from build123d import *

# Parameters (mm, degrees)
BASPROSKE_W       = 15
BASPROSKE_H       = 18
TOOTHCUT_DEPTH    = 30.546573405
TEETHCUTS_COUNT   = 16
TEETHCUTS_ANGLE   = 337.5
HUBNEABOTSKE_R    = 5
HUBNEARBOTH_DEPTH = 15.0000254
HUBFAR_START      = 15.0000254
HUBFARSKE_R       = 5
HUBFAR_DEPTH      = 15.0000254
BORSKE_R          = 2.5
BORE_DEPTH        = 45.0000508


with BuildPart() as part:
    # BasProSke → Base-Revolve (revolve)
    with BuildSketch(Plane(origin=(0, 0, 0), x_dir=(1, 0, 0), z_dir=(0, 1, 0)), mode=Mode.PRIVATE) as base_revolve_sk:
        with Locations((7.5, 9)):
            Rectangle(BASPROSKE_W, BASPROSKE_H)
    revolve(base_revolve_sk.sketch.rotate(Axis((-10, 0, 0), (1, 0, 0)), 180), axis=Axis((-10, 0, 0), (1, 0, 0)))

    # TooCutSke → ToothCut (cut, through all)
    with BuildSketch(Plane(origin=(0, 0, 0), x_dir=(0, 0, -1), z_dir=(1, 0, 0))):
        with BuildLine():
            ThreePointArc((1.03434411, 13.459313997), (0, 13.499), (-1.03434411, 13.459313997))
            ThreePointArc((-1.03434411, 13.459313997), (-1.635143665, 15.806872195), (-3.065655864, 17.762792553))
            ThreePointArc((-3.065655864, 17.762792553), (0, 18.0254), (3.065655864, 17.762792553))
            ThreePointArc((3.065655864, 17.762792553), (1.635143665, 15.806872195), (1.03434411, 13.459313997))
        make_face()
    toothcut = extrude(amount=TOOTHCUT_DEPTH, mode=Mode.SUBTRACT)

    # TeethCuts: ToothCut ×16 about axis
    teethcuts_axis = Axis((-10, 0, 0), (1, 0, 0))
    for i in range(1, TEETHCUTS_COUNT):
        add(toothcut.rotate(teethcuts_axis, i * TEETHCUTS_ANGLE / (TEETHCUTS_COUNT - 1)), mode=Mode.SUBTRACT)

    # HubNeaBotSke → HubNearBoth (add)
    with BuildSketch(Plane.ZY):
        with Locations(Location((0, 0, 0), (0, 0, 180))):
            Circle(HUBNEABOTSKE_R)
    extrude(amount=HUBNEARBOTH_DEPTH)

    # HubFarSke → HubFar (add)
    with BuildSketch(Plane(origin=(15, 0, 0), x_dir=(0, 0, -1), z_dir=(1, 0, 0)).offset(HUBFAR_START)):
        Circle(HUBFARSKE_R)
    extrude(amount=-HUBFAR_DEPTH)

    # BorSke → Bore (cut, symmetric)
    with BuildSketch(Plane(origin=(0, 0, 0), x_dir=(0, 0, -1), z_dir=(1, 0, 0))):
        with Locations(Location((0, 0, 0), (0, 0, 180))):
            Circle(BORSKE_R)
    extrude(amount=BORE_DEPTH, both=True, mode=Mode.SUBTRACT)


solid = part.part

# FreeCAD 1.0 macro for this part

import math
import FreeCAD as App
import Part
import Sketcher

V = App.Vector

doc = App.newDocument("Part")
params = doc.addObject("Spreadsheet::Sheet", "Params")
for row, (alias, value) in enumerate([
    ("sketch1_width", "15 mm"),
    ("sketch1_height", "18 mm"),
    ("revolution_angle", "360 deg"),
    ("sketch2_radius", "6.4 mm"),
    ("sketch3_diameter", "10 mm"),
    ("pad1_length", "15.000025 mm"),
    ("sketch4_diameter", "10 mm"),
    ("pad2_length", "15.000025 mm"),
    ("sketch5_diameter", "5 mm"),
    ("pocket2_length", "90.000102 mm"),
], start=1):
    params.set(f"A{row}", alias)
    params.set(f"B{row}", "=" + value)
    params.setAlias(f"B{row}", alias)

body = doc.addObject("PartDesign::Body", "Body")

# Sketch on XZ plane
sketch1 = doc.addObject("Sketcher::SketchObject", "Sketch")
body.addObject(sketch1)
sketch1.AttachmentSupport = (doc.XZ_Plane, [""])
sketch1.MapMode = "FlatFace"
sketch1.addGeometry(Part.LineSegment(V(0, -18, 0), V(0, 0, 0)), False)
sketch1.addGeometry(Part.LineSegment(V(0, 0, 0), V(15, 0, 0)), False)
sketch1.addGeometry(Part.LineSegment(V(15, 0, 0), V(15, -18, 0)), False)
sketch1.addGeometry(Part.LineSegment(V(15, -18, 0), V(0, -18, 0)), False)
sketch1.addConstraint(Sketcher.Constraint("Coincident", 0, 2, 1, 1))
sketch1.addConstraint(Sketcher.Constraint("Coincident", 1, 2, 2, 1))
sketch1.addConstraint(Sketcher.Constraint("Coincident", 2, 2, 3, 1))
sketch1.addConstraint(Sketcher.Constraint("Coincident", 3, 2, 0, 1))
sketch1.addConstraint(Sketcher.Constraint("Vertical", 0))
sketch1.addConstraint(Sketcher.Constraint("Horizontal", 1))
sketch1.addConstraint(Sketcher.Constraint("Vertical", 2))
sketch1.addConstraint(Sketcher.Constraint("Horizontal", 3))
sketch1.addConstraint(Sketcher.Constraint("Coincident", 0, 2, -1, 1))
sketch1.addConstraint(Sketcher.Constraint("DistanceX", 1, 1, 1, 2, 15.0))
sketch1.addConstraint(Sketcher.Constraint("DistanceY", 0, 1, 0, 2, 18.0))
sketch1.setExpression("Constraints[9]", "Params.sketch1_width")
sketch1.setExpression("Constraints[10]", "Params.sketch1_height")
revolution = doc.addObject("PartDesign::Revolution", "Revolution")
body.addObject(revolution)
revolution.Profile = sketch1
revolution.ReferenceAxis = (sketch1, ["H_Axis"])
revolution.setExpression("Angle", "Params.revolution_angle")

# Sketch on YZ plane
sketch2 = doc.addObject("Sketcher::SketchObject", "Sketch001")
body.addObject(sketch2)
sketch2.AttachmentSupport = (doc.YZ_Plane, [""])
sketch2.MapMode = "FlatFace"
sketch2.addGeometry(Part.ArcOfCircle(Part.Circle(V(0, 0, 0), V(0, 0, 1), 13.5), math.radians(-4.39), math.radians(4.39)), False)
sketch2.addGeometry(Part.ArcOfCircle(Part.Circle(V(13.1, -7.4, 0), V(0, 0, 1), 6.4), math.radians(43), math.radians(87)), False)
sketch2.addGeometry(Part.ArcOfCircle(Part.Circle(V(0, 0, 0), V(0, 0, 1), 18), math.radians(-9.79), math.radians(9.79)), False)
sketch2.addGeometry(Part.ArcOfCircle(Part.Circle(V(13.1, 7.4, 0), V(0, 0, 1), 6.4), math.radians(-87), math.radians(-43)), False)
sketch2.addConstraint(Sketcher.Constraint("Coincident", 0, 1, 1, 2))
sketch2.addConstraint(Sketcher.Constraint("Coincident", 1, 1, 2, 1))
sketch2.addConstraint(Sketcher.Constraint("Coincident", 2, 2, 3, 2))
sketch2.addConstraint(Sketcher.Constraint("Coincident", 3, 1, 0, 2))
sketch2.addConstraint(Sketcher.Constraint("Coincident", 0, 3, -1, 1))
sketch2.addConstraint(Sketcher.Constraint("Coincident", 2, 3, -1, 1))
sketch2.addConstraint(Sketcher.Constraint("Equal", 1, 3))
sketch2.addConstraint(Sketcher.Constraint("Symmetric", 1, 3, 3, 3, -1))
sketch2.addConstraint(Sketcher.Constraint("Radius", 1, 6.4))
sketch2.addConstraint(Sketcher.Constraint("Radius", 0, 13.499))
sketch2.addConstraint(Sketcher.Constraint("Radius", 2, 18.0254))
sketch2.addConstraint(Sketcher.Constraint("DistanceY", 0, 1, 2, 2, 4.1))
sketch2.addConstraint(Sketcher.Constraint("DistanceY", 1, 3, 3, 3, 14.84559))
sketch2.setExpression("Constraints[8]", "Params.sketch2_radius")
pocket1 = doc.addObject("PartDesign::Pocket", "Pocket")
body.addObject(pocket1)
pocket1.Profile = sketch2
pocket1.Type = "ThroughAll"
pocket1.Reversed = True
doc.recompute()

polarpattern = doc.addObject("PartDesign::PolarPattern", "PolarPattern")
body.addObject(polarpattern)
polarpattern.Originals = [pocket1]
polarpattern.Axis = (doc.X_Axis, [""])
polarpattern.Angle = 360
polarpattern.Occurrences = 16
body.Tip = polarpattern

# Sketch on YZ plane
sketch3 = doc.addObject("Sketcher::SketchObject", "Sketch002")
body.addObject(sketch3)
sketch3.AttachmentSupport = (doc.YZ_Plane, [""])
sketch3.MapMode = "FlatFace"
sketch3.addGeometry(Part.Circle(V(0, 0, 0), V(0, 0, 1), 5), False)
sketch3.addConstraint(Sketcher.Constraint("Coincident", 0, 3, -1, 1))
sketch3.addConstraint(Sketcher.Constraint("Diameter", 0, 10.0))
sketch3.setExpression("Constraints[1]", "Params.sketch3_diameter")
pad1 = doc.addObject("PartDesign::Pad", "Pad")
body.addObject(pad1)
pad1.Profile = sketch3
pad1.setExpression("Length", "Params.pad1_length")
pad1.Reversed = True

# Sketch on YZ plane
sketch4 = doc.addObject("Sketcher::SketchObject", "Sketch003")
body.addObject(sketch4)
sketch4.AttachmentSupport = (doc.YZ_Plane, [""])
sketch4.MapMode = "FlatFace"
sketch4.AttachmentOffset = App.Placement(V(0, 0, 30.000025), App.Rotation())
sketch4.addGeometry(Part.Circle(V(0, 0, 0), V(0, 0, 1), 5), False)
sketch4.addConstraint(Sketcher.Constraint("Coincident", 0, 3, -1, 1))
sketch4.addConstraint(Sketcher.Constraint("Diameter", 0, 10.0))
sketch4.setExpression("Constraints[1]", "Params.sketch4_diameter")
pad2 = doc.addObject("PartDesign::Pad", "Pad001")
body.addObject(pad2)
pad2.Profile = sketch4
pad2.setExpression("Length", "Params.pad2_length")
pad2.Reversed = True

# Sketch on YZ plane
sketch5 = doc.addObject("Sketcher::SketchObject", "Sketch004")
body.addObject(sketch5)
sketch5.AttachmentSupport = (doc.YZ_Plane, [""])
sketch5.MapMode = "FlatFace"
sketch5.addGeometry(Part.Circle(V(0, 0, 0), V(0, 0, 1), 2.5), False)
sketch5.addConstraint(Sketcher.Constraint("Coincident", 0, 3, -1, 1))
sketch5.addConstraint(Sketcher.Constraint("Diameter", 0, 5.0))
sketch5.setExpression("Constraints[1]", "Params.sketch5_diameter")
pocket2 = doc.addObject("PartDesign::Pocket", "Pocket001")
body.addObject(pocket2)
pocket2.Profile = sketch5
pocket2.setExpression("Length", "Params.pocket2_length")
pocket2.Midplane = True

doc.recompute()
